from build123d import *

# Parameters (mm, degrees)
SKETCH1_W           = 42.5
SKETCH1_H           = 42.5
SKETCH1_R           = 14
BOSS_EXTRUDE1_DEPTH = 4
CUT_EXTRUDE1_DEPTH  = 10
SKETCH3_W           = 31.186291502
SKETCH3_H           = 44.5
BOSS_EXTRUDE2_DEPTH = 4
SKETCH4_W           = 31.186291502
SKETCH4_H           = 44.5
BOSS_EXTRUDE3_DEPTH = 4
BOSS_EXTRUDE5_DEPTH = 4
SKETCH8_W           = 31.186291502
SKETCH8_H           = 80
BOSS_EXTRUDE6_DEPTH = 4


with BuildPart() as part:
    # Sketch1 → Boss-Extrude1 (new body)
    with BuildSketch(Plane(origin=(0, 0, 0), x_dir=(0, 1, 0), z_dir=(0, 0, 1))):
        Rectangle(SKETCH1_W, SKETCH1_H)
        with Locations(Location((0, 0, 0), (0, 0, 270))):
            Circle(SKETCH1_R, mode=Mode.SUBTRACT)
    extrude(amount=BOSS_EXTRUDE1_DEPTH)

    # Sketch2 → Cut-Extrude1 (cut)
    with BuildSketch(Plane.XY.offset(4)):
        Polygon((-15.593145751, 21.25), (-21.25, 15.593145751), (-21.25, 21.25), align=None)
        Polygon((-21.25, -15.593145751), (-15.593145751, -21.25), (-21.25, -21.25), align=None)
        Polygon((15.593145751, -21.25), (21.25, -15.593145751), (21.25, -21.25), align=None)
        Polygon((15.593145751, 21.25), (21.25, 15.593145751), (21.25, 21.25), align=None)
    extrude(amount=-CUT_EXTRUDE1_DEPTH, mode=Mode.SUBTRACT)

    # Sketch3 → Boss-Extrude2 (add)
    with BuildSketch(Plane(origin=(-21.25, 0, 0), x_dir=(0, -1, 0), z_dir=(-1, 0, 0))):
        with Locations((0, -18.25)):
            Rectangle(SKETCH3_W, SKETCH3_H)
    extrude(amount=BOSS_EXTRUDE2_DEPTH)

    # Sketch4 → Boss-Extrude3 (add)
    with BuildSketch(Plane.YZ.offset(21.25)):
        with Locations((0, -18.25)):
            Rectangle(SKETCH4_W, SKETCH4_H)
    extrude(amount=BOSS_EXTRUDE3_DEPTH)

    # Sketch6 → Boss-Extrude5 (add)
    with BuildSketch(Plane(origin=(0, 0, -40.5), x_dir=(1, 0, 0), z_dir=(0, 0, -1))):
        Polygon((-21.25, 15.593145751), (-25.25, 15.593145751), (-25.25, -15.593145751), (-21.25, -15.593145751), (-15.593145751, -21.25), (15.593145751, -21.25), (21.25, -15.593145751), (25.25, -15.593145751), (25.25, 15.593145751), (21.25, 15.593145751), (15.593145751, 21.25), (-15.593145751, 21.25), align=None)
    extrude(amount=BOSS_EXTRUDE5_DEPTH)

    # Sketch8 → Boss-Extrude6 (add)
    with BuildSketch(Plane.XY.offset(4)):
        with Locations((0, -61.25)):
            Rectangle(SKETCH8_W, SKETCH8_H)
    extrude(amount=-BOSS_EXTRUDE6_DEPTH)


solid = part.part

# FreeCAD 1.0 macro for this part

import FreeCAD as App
import Part
import Sketcher
from FreeCAD import Vector

doc = App.newDocument("Part")
body = doc.addObject("PartDesign::Body", "Body")

# Sketch on XY plane
sketch1 = doc.addObject("Sketcher::SketchObject", "Sketch")
body.addObject(sketch1)
sketch1.AttachmentSupport = (doc.XY_Plane, [""])
sketch1.MapMode = "FlatFace"
sketch1.addGeometry(Part.LineSegment(Vector(-21, -21, 0), Vector(21, -21, 0)), False)
sketch1.addGeometry(Part.LineSegment(Vector(21, -21, 0), Vector(21, 21, 0)), False)
sketch1.addGeometry(Part.LineSegment(Vector(21, 21, 0), Vector(-21, 21, 0)), False)
sketch1.addGeometry(Part.LineSegment(Vector(-21, 21, 0), Vector(-21, -21, 0)), False)
sketch1.addGeometry(Part.Circle(Vector(0, 0, 0), Vector(0, 0, 1), 14), False)
sketch1.addConstraint(Sketcher.Constraint("Coincident", 0, 2, 1, 1))
sketch1.addConstraint(Sketcher.Constraint("Coincident", 1, 2, 2, 1))
sketch1.addConstraint(Sketcher.Constraint("Coincident", 2, 2, 3, 1))
sketch1.addConstraint(Sketcher.Constraint("Coincident", 3, 2, 0, 1))
sketch1.addConstraint(Sketcher.Constraint("Horizontal", 0))
sketch1.addConstraint(Sketcher.Constraint("Vertical", 1))
sketch1.addConstraint(Sketcher.Constraint("Horizontal", 2))
sketch1.addConstraint(Sketcher.Constraint("Vertical", 3))
sketch1.addConstraint(Sketcher.Constraint("Coincident", 4, 3, -1, 1))
sketch1.addConstraint(Sketcher.Constraint("Symmetric", 0, 2, 2, 2, -1, 1))
sketch1.addConstraint(Sketcher.Constraint("Equal", 2, 1))
sketch1.addConstraint(Sketcher.Constraint("Diameter", 4, 28.0))
sketch1.addConstraint(Sketcher.Constraint("DistanceX", 0, 1, 0, 2, 42.5))
pad1 = doc.addObject("PartDesign::Pad", "Pad")
body.addObject(pad1)
pad1.Profile = sketch1
pad1.Length = 4

# Sketch on XY plane
sketch2 = doc.addObject("Sketcher::SketchObject", "Sketch001")
body.addObject(sketch2)
sketch2.AttachmentSupport = (doc.XY_Plane, [""])
sketch2.MapMode = "FlatFace"
sketch2.AttachmentOffset = App.Placement(Vector(0, 0, 4), App.Rotation())
sketch2.addGeometry(Part.LineSegment(Vector(-21, 16, 0), Vector(-16, 21, 0)), False)
sketch2.addGeometry(Part.LineSegment(Vector(-16, 21, 0), Vector(-21, 21, 0)), False)
sketch2.addGeometry(Part.LineSegment(Vector(-21, 21, 0), Vector(-21, 16, 0)), False)
sketch2.addGeometry(Part.LineSegment(Vector(-16, -21, 0), Vector(-21, -16, 0)), False)
sketch2.addGeometry(Part.LineSegment(Vector(-21, -16, 0), Vector(-21, -21, 0)), False)
sketch2.addGeometry(Part.LineSegment(Vector(-21, -21, 0), Vector(-16, -21, 0)), False)
sketch2.addGeometry(Part.LineSegment(Vector(21, -16, 0), Vector(16, -21, 0)), False)
sketch2.addGeometry(Part.LineSegment(Vector(16, -21, 0), Vector(21, -21, 0)), False)
sketch2.addGeometry(Part.LineSegment(Vector(21, -21, 0), Vector(21, -16, 0)), False)
sketch2.addGeometry(Part.LineSegment(Vector(16, 21, 0), Vector(21, 16, 0)), False)
sketch2.addGeometry(Part.LineSegment(Vector(21, 16, 0), Vector(21, 21, 0)), False)
sketch2.addGeometry(Part.LineSegment(Vector(21, 21, 0), Vector(16, 21, 0)), False)
sketch2.addConstraint(Sketcher.Constraint("Coincident", 0, 2, 1, 1))
sketch2.addConstraint(Sketcher.Constraint("Coincident", 1, 2, 2, 1))
sketch2.addConstraint(Sketcher.Constraint("Coincident", 2, 2, 0, 1))
sketch2.addConstraint(Sketcher.Constraint("Coincident", 3, 2, 4, 1))
sketch2.addConstraint(Sketcher.Constraint("Coincident", 4, 2, 5, 1))
sketch2.addConstraint(Sketcher.Constraint("Coincident", 5, 2, 3, 1))
sketch2.addConstraint(Sketcher.Constraint("Coincident", 6, 2, 7, 1))
sketch2.addConstraint(Sketcher.Constraint("Coincident", 7, 2, 8, 1))
sketch2.addConstraint(Sketcher.Constraint("Coincident", 8, 2, 6, 1))
sketch2.addConstraint(Sketcher.Constraint("Coincident", 9, 2, 10, 1))
sketch2.addConstraint(Sketcher.Constraint("Coincident", 10, 2, 11, 1))
sketch2.addConstraint(Sketcher.Constraint("Coincident", 11, 2, 9, 1))
sketch2.addConstraint(Sketcher.Constraint("Horizontal", 1))
sketch2.addConstraint(Sketcher.Constraint("Vertical", 2))
sketch2.addConstraint(Sketcher.Constraint("Vertical", 4))
sketch2.addConstraint(Sketcher.Constraint("Horizontal", 5))
sketch2.addConstraint(Sketcher.Constraint("Horizontal", 7))
sketch2.addConstraint(Sketcher.Constraint("Vertical", 8))
sketch2.addConstraint(Sketcher.Constraint("Vertical", 10))
sketch2.addConstraint(Sketcher.Constraint("Horizontal", 11))
sketch2.addConstraint(Sketcher.Constraint("Symmetric", 0, 2, 6, 2, -1, 1))
sketch2.addConstraint(Sketcher.Constraint("Symmetric", 2, 2, 8, 2, -1, 1))
sketch2.addConstraint(Sketcher.Constraint("Symmetric", 3, 2, 9, 2, -1, 1))
sketch2.addConstraint(Sketcher.Constraint("Symmetric", 5, 2, 11, 2, -1, 1))
sketch2.addConstraint(Sketcher.Constraint("Symmetric", 5, 2, 6, 2, -2))
sketch2.addConstraint(Sketcher.Constraint("Symmetric", 3, 2, 8, 2, -2))
sketch2.addConstraint(Sketcher.Constraint("Perpendicular", 0, 3))
sketch2.addConstraint(Sketcher.Constraint("Distance", 0, 8.0))
sketch2.addConstraint(Sketcher.Constraint("DistanceY", 4, 2, 1, 2, 42.5))
sketch2.addConstraint(Sketcher.Constraint("DistanceX", 4, 2, 7, 2, 42.5))
pocket1 = doc.addObject("PartDesign::Pocket", "Pocket")
body.addObject(pocket1)
pocket1.Profile = sketch2
pocket1.Length = 10

# Sketch on YZ plane
sketch3 = doc.addObject("Sketcher::SketchObject", "Sketch002")
body.addObject(sketch3)
sketch3.AttachmentSupport = (doc.YZ_Plane, [""])
sketch3.MapMode = "FlatFace"
sketch3.AttachmentOffset = App.Placement(Vector(0, 0, -21.25), App.Rotation())
sketch3.addGeometry(Part.LineSegment(Vector(16, 4, 0), Vector(16, -40, 0)), False)
sketch3.addGeometry(Part.LineSegment(Vector(16, -40, 0), Vector(-16, -40, 0)), False)
sketch3.addGeometry(Part.LineSegment(Vector(-16, -40, 0), Vector(-16, 4, 0)), False)
sketch3.addGeometry(Part.LineSegment(Vector(-16, 4, 0), Vector(16, 4, 0)), False)
sketch3.addConstraint(Sketcher.Constraint("Coincident", 0, 2, 1, 1))
sketch3.addConstraint(Sketcher.Constraint("Coincident", 1, 2, 2, 1))
sketch3.addConstraint(Sketcher.Constraint("Coincident", 2, 2, 3, 1))
sketch3.addConstraint(Sketcher.Constraint("Coincident", 3, 2, 0, 1))
sketch3.addConstraint(Sketcher.Constraint("Vertical", 0))
sketch3.addConstraint(Sketcher.Constraint("Horizontal", 1))
sketch3.addConstraint(Sketcher.Constraint("Vertical", 2))
sketch3.addConstraint(Sketcher.Constraint("Horizontal", 3))
sketch3.addConstraint(Sketcher.Constraint("DistanceY", 0, 2, 0, 1, 44.5))
sketch3.addConstraint(Sketcher.Constraint("DistanceY", -1, 1, 2, 2, 4.0))
sketch3.addConstraint(Sketcher.Constraint("DistanceX", 1, 2, 1, 1, 31.186292))
sketch3.addConstraint(Sketcher.Constraint("DistanceX", -1, 1, 0, 2, 15.593146))
pad2 = doc.addObject("PartDesign::Pad", "Pad001")
body.addObject(pad2)
pad2.Profile = sketch3
pad2.Length = 4
pad2.Reversed = True

# Sketch on YZ plane
sketch4 = doc.addObject("Sketcher::SketchObject", "Sketch003")
body.addObject(sketch4)
sketch4.AttachmentSupport = (doc.YZ_Plane, [""])
sketch4.MapMode = "FlatFace"
sketch4.AttachmentOffset = App.Placement(Vector(0, 0, 21.25), App.Rotation())
sketch4.addGeometry(Part.LineSegment(Vector(-16, 4, 0), Vector(-16, -40, 0)), False)
sketch4.addGeometry(Part.LineSegment(Vector(-16, -40, 0), Vector(16, -40, 0)), False)
sketch4.addGeometry(Part.LineSegment(Vector(16, -40, 0), Vector(16, 4, 0)), False)
sketch4.addGeometry(Part.LineSegment(Vector(16, 4, 0), Vector(-16, 4, 0)), False)
sketch4.addConstraint(Sketcher.Constraint("Coincident", 0, 2, 1, 1))
sketch4.addConstraint(Sketcher.Constraint("Coincident", 1, 2, 2, 1))
sketch4.addConstraint(Sketcher.Constraint("Coincident", 2, 2, 3, 1))
sketch4.addConstraint(Sketcher.Constraint("Coincident", 3, 2, 0, 1))
sketch4.addConstraint(Sketcher.Constraint("Vertical", 0))
sketch4.addConstraint(Sketcher.Constraint("Horizontal", 1))
sketch4.addConstraint(Sketcher.Constraint("Vertical", 2))
sketch4.addConstraint(Sketcher.Constraint("Horizontal", 3))
sketch4.addConstraint(Sketcher.Constraint("DistanceY", 0, 2, 0, 1, 44.5))
sketch4.addConstraint(Sketcher.Constraint("DistanceY", -1, 1, 2, 2, 4.0))
sketch4.addConstraint(Sketcher.Constraint("DistanceX", 1, 1, 1, 2, 31.186292))
sketch4.addConstraint(Sketcher.Constraint("DistanceX", 0, 2, -1, 1, 15.593146))
pad3 = doc.addObject("PartDesign::Pad", "Pad002")
body.addObject(pad3)
pad3.Profile = sketch4
pad3.Length = 4

# Sketch on XY plane
sketch5 = doc.addObject("Sketcher::SketchObject", "Sketch004")
body.addObject(sketch5)
sketch5.AttachmentSupport = (doc.XY_Plane, [""])
sketch5.MapMode = "FlatFace"
sketch5.AttachmentOffset = App.Placement(Vector(0, 0, -40.5), App.Rotation())
sketch5.addGeometry(Part.LineSegment(Vector(-21.2, -15.6, 0), Vector(-25.2, -15.6, 0)), False)
sketch5.addGeometry(Part.LineSegment(Vector(-25.2, -15.6, 0), Vector(-25.2, 15.6, 0)), False)
sketch5.addGeometry(Part.LineSegment(Vector(-25.2, 15.6, 0), Vector(-21.2, 15.6, 0)), False)
sketch5.addGeometry(Part.LineSegment(Vector(-21.2, 15.6, 0), Vector(-15.6, 21.2, 0)), False)
sketch5.addGeometry(Part.LineSegment(Vector(-15.6, 21.2, 0), Vector(15.6, 21.2, 0)), False)
sketch5.addGeometry(Part.LineSegment(Vector(15.6, 21.2, 0), Vector(21.2, 15.6, 0)), False)
sketch5.addGeometry(Part.LineSegment(Vector(21.2, 15.6, 0), Vector(25.2, 15.6, 0)), False)
sketch5.addGeometry(Part.LineSegment(Vector(25.2, 15.6, 0), Vector(25.2, -15.6, 0)), False)
sketch5.addGeometry(Part.LineSegment(Vector(25.2, -15.6, 0), Vector(21.2, -15.6, 0)), False)
sketch5.addGeometry(Part.LineSegment(Vector(21.2, -15.6, 0), Vector(15.6, -21.2, 0)), False)
sketch5.addGeometry(Part.LineSegment(Vector(15.6, -21.2, 0), Vector(-15.6, -21.2, 0)), False)
sketch5.addGeometry(Part.LineSegment(Vector(-15.6, -21.2, 0), Vector(-21.2, -15.6, 0)), False)
sketch5.addConstraint(Sketcher.Constraint("Coincident", 0, 2, 1, 1))
sketch5.addConstraint(Sketcher.Constraint("Coincident", 1, 2, 2, 1))
sketch5.addConstraint(Sketcher.Constraint("Coincident", 2, 2, 3, 1))
sketch5.addConstraint(Sketcher.Constraint("Coincident", 3, 2, 4, 1))
sketch5.addConstraint(Sketcher.Constraint("Coincident", 4, 2, 5, 1))
sketch5.addConstraint(Sketcher.Constraint("Coincident", 5, 2, 6, 1))
sketch5.addConstraint(Sketcher.Constraint("Coincident", 6, 2, 7, 1))
sketch5.addConstraint(Sketcher.Constraint("Coincident", 7, 2, 8, 1))
sketch5.addConstraint(Sketcher.Constraint("Coincident", 8, 2, 9, 1))
sketch5.addConstraint(Sketcher.Constraint("Coincident", 9, 2, 10, 1))
sketch5.addConstraint(Sketcher.Constraint("Coincident", 10, 2, 11, 1))
sketch5.addConstraint(Sketcher.Constraint("Coincident", 11, 2, 0, 1))
sketch5.addConstraint(Sketcher.Constraint("Horizontal", 0))
sketch5.addConstraint(Sketcher.Constraint("Vertical", 1))
sketch5.addConstraint(Sketcher.Constraint("Horizontal", 2))
sketch5.addConstraint(Sketcher.Constraint("Horizontal", 4))
sketch5.addConstraint(Sketcher.Constraint("Horizontal", 6))
sketch5.addConstraint(Sketcher.Constraint("Vertical", 7))
sketch5.addConstraint(Sketcher.Constraint("Horizontal", 8))
sketch5.addConstraint(Sketcher.Constraint("Horizontal", 10))
sketch5.addConstraint(Sketcher.Constraint("Symmetric", 0, 2, 6, 2, -1, 1))
sketch5.addConstraint(Sketcher.Constraint("Symmetric", 2, 2, 8, 2, -1, 1))
sketch5.addConstraint(Sketcher.Constraint("Symmetric", 3, 2, 9, 2, -1, 1))
sketch5.addConstraint(Sketcher.Constraint("Symmetric", 2, 2, 5, 2, -2))
sketch5.addConstraint(Sketcher.Constraint("Perpendicular", 3, 5))
sketch5.addConstraint(Sketcher.Constraint("Perpendicular", 9, 11))
sketch5.addConstraint(Sketcher.Constraint("Vertical", 4, 2, 9, 2))
sketch5.addConstraint(Sketcher.Constraint("Vertical", 3, 2, 10, 2))
sketch5.addConstraint(Sketcher.Constraint("Equal", 10, 1))
sketch5.addConstraint(Sketcher.Constraint("DistanceX", 0, 2, 0, 1, 4.0))
sketch5.addConstraint(Sketcher.Constraint("Distance", 3, 8.0))
sketch5.addConstraint(Sketcher.Constraint("DistanceX", 2, 2, 5, 2, 42.5))
pad4 = doc.addObject("PartDesign::Pad", "Pad003")
body.addObject(pad4)
pad4.Profile = sketch5
pad4.Length = 4
pad4.Reversed = True

# Sketch on XY plane
sketch6 = doc.addObject("Sketcher::SketchObject", "Sketch005")
body.addObject(sketch6)
sketch6.AttachmentSupport = (doc.XY_Plane, [""])
sketch6.MapMode = "FlatFace"
sketch6.AttachmentOffset = App.Placement(Vector(0, 0, 4), App.Rotation())
sketch6.addGeometry(Part.LineSegment(Vector(-16, -21, 0), Vector(-16, -101, 0)), False)
sketch6.addGeometry(Part.LineSegment(Vector(-16, -101, 0), Vector(16, -101, 0)), False)
sketch6.addGeometry(Part.LineSegment(Vector(16, -101, 0), Vector(16, -21, 0)), False)
sketch6.addGeometry(Part.LineSegment(Vector(16, -21, 0), Vector(-16, -21, 0)), False)
sketch6.addConstraint(Sketcher.Constraint("Coincident", 0, 2, 1, 1))
sketch6.addConstraint(Sketcher.Constraint("Coincident", 1, 2, 2, 1))
sketch6.addConstraint(Sketcher.Constraint("Coincident", 2, 2, 3, 1))
sketch6.addConstraint(Sketcher.Constraint("Coincident", 3, 2, 0, 1))
sketch6.addConstraint(Sketcher.Constraint("Vertical", 0))
sketch6.addConstraint(Sketcher.Constraint("Horizontal", 1))
sketch6.addConstraint(Sketcher.Constraint("Vertical", 2))
sketch6.addConstraint(Sketcher.Constraint("Horizontal", 3))
sketch6.addConstraint(Sketcher.Constraint("DistanceY", 0, 2, 0, 1, 80.0))
sketch6.addConstraint(Sketcher.Constraint("DistanceY", 0, 2, -1, 1, 101.25))
sketch6.addConstraint(Sketcher.Constraint("DistanceX", 1, 1, 1, 2, 31.186292))
sketch6.addConstraint(Sketcher.Constraint("DistanceX", 0, 2, -1, 1, 15.593146))
pad5 = doc.addObject("PartDesign::Pad", "Pad004")
body.addObject(pad5)
pad5.Profile = sketch6
pad5.Length = 4
pad5.Reversed = True

doc.recompute()
